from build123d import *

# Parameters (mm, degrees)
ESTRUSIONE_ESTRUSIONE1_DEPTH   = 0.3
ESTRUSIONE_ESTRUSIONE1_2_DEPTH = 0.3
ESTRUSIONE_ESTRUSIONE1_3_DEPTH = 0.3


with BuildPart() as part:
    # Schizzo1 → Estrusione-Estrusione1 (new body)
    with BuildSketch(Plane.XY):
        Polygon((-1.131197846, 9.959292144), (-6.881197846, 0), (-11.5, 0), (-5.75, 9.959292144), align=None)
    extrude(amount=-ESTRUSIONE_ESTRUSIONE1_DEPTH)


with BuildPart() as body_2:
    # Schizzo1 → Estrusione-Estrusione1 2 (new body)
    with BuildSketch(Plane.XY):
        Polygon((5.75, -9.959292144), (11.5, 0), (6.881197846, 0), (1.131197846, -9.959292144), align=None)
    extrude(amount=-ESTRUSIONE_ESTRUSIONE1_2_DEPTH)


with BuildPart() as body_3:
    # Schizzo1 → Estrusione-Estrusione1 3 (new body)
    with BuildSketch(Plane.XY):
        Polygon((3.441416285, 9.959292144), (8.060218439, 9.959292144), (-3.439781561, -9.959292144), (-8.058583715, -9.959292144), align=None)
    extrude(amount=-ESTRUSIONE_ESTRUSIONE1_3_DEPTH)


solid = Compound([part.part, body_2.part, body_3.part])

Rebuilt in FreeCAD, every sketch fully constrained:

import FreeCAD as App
import Part
import Sketcher
Q = App.Units.Quantity

doc = App.newDocument("Part")
body = doc.addObject("PartDesign::Body", "Body")

sketch1 = body.newObject("Sketcher::SketchObject", "Sketch")
sketch1.AttachmentSupport = (doc.getObject("XY_Plane"), [""])
sketch1.MapMode = "FlatFace"
sketch1.addGeometry([
    Part.LineSegment(App.Vector(-6.9, 0, 0), App.Vector(-1.1, 10, 0)),
    Part.LineSegment(App.Vector(-1.1, 10, 0), App.Vector(-5.8, 10, 0)),
    Part.LineSegment(App.Vector(-5.8, 10, 0), App.Vector(-11.5, 0, 0)),
    Part.LineSegment(App.Vector(-11.5, 0, 0), App.Vector(-6.9, 0, 0)),
], False)
sketch1.addConstraint([
    Sketcher.Constraint("Coincident", 0, 2, 1, 1),
    Sketcher.Constraint("Coincident", 1, 2, 2, 1),
    Sketcher.Constraint("Coincident", 2, 2, 3, 1),
    Sketcher.Constraint("Coincident", 3, 2, 0, 1),
    Sketcher.Constraint("Horizontal", 1),
    Sketcher.Constraint("Horizontal", 3),
    Sketcher.Constraint("PointOnObject", 2, 2, -1),
    Sketcher.Constraint("Parallel", 0, 2),
    Sketcher.Constraint("Angle", 0, Q("60 deg")),
    Sketcher.Constraint("Distance", 0, Q("11.5 mm")),
    Sketcher.Constraint("DistanceX", 2, 2, -1, 1, Q("11.5 mm")),
    Sketcher.Constraint("DistanceX", 1, 2, 1, 1, Q("4.618802 mm")),
])
pad1 = body.newObject("PartDesign::Pad", "Pad")
pad1.Profile = sketch1
pad1.Length = 0.3
pad1.Reversed = True
body2 = doc.addObject("PartDesign::Body", "Body001")

sketch2 = body2.newObject("Sketcher::SketchObject", "Sketch001")
sketch2.AttachmentSupport = (doc.getObject("XY_Plane001"), [""])
sketch2.MapMode = "FlatFace"
sketch2.addGeometry([
    Part.LineSegment(App.Vector(5.8, -10, 0), App.Vector(11.5, 0, 0)),
    Part.LineSegment(App.Vector(11.5, 0, 0), App.Vector(6.9, 0, 0)),
    Part.LineSegment(App.Vector(6.9, 0, 0), App.Vector(1.1, -10, 0)),
    Part.LineSegment(App.Vector(1.1, -10, 0), App.Vector(5.8, -10, 0)),
], False)
sketch2.addConstraint([
    Sketcher.Constraint("Coincident", 0, 2, 1, 1),
    Sketcher.Constraint("Coincident", 1, 2, 2, 1),
    Sketcher.Constraint("Coincident", 2, 2, 3, 1),
    Sketcher.Constraint("Coincident", 3, 2, 0, 1),
    Sketcher.Constraint("Horizontal", 1),
    Sketcher.Constraint("Horizontal", 3),
    Sketcher.Constraint("PointOnObject", 0, 2, -1),
    Sketcher.Constraint("Parallel", 0, 2),
    Sketcher.Constraint("Angle", 0, Q("60 deg")),
    Sketcher.Constraint("Distance", 0, Q("11.5 mm")),
    Sketcher.Constraint("DistanceX", -1, 1, 0, 2, Q("11.5 mm")),
    Sketcher.Constraint("DistanceX", 1, 2, 1, 1, Q("4.618802 mm")),
])
pad2 = body2.newObject("PartDesign::Pad", "Pad001")
pad2.Profile = sketch2
pad2.Length = 0.3
pad2.Reversed = True
body3 = doc.addObject("PartDesign::Body", "Body002")

sketch3 = body3.newObject("Sketcher::SketchObject", "Sketch002")
sketch3.AttachmentSupport = (doc.getObject("XY_Plane002"), [""])
sketch3.MapMode = "FlatFace"
sketch3.addGeometry([
    Part.LineSegment(App.Vector(8.1, 10, 0), App.Vector(3.4, 10, 0)),
    Part.LineSegment(App.Vector(3.4, 10, 0), App.Vector(-8.1, -10, 0)),
    Part.LineSegment(App.Vector(-8.1, -10, 0), App.Vector(-3.4, -10, 0)),
    Part.LineSegment(App.Vector(-3.4, -10, 0), App.Vector(8.1, 10, 0)),
], False)
sketch3.addConstraint([
    Sketcher.Constraint("Coincident", 0, 2, 1, 1),
    Sketcher.Constraint("Coincident", 1, 2, 2, 1),
    Sketcher.Constraint("Coincident", 2, 2, 3, 1),
    Sketcher.Constraint("Coincident", 3, 2, 0, 1),
    Sketcher.Constraint("Horizontal", 0),
    Sketcher.Constraint("Horizontal", 2),
    Sketcher.Constraint("Parallel", 1, 3),
    Sketcher.Constraint("Angle", 1, Q("-120 deg")),
    Sketcher.Constraint("Distance", 1, Q("23 mm")),
    Sketcher.Constraint("DistanceX", 0, 2, 0, 1, Q("4.618802 mm")),
    Sketcher.Constraint("DistanceX", 2, 2, -1, 1, Q("3.439782 mm")),
    Sketcher.Constraint("DistanceY", -1, 1, 0, 2, Q("9.959292 mm")),
])
pad3 = body3.newObject("PartDesign::Pad", "Pad002")
pad3.Profile = sketch3
pad3.Length = 0.3
pad3.Reversed = True

doc.recompute()
